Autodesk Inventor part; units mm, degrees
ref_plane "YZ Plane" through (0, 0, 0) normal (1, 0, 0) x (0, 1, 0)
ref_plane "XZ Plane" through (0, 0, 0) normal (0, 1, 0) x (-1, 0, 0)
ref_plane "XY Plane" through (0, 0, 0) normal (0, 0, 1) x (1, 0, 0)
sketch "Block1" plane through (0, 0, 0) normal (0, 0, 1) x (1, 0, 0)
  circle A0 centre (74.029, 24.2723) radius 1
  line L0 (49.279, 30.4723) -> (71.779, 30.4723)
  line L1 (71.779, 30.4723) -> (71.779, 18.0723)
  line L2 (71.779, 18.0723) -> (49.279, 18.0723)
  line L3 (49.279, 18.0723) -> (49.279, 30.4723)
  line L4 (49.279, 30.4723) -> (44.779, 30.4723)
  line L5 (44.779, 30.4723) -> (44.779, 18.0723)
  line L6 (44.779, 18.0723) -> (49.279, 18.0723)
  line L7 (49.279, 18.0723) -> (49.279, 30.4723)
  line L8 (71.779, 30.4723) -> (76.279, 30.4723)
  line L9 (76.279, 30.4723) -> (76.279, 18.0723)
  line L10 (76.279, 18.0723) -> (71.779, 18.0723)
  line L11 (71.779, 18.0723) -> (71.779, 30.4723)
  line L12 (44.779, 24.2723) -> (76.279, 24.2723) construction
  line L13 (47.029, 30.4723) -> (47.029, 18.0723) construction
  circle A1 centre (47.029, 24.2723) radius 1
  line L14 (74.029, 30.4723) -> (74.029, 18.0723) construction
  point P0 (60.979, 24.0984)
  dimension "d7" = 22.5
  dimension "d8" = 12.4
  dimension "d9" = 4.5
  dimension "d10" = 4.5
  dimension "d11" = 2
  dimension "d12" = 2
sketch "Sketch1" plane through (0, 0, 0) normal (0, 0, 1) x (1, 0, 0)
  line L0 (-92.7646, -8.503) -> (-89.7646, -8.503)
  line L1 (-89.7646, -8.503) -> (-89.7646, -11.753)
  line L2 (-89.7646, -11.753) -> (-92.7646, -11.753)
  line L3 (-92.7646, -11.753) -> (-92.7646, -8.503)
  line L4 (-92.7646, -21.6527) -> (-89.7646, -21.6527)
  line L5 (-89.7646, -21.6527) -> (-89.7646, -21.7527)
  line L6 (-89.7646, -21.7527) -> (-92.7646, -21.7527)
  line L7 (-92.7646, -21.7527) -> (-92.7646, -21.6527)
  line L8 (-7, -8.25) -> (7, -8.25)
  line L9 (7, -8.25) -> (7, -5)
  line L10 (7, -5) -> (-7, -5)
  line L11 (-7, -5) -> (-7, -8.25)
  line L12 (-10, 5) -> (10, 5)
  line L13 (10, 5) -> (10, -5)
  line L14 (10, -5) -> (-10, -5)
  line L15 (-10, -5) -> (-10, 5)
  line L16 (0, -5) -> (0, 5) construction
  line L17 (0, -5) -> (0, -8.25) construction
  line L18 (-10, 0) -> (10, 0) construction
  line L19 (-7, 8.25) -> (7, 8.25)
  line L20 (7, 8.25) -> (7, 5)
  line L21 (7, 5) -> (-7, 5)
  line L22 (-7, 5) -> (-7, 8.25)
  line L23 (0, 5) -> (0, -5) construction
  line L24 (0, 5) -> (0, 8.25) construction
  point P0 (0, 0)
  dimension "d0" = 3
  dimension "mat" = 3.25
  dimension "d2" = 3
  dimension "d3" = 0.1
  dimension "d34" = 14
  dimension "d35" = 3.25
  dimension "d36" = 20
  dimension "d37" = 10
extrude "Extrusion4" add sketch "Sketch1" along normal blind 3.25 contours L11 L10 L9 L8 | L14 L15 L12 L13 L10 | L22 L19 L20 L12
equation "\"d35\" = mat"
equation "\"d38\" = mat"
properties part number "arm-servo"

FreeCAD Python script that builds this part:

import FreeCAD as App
import Part
import Sketcher
Q = App.Units.Quantity


def add_polygon(sketch, points):
    """Adds a closed chain of lines whose ends are joined by coincident constraints."""
    first, n = sketch.GeometryCount, len(points)
    for a, b in zip(points, points[1:] + points[:1]):
        sketch.addGeometry(Part.LineSegment(App.Vector(*a, 0), App.Vector(*b, 0)), False)
    for i in range(n):
        sketch.addConstraint(Sketcher.Constraint("Coincident", first + i, 2, first + (i + 1) % n, 1))

doc = App.newDocument("Part")
body = doc.addObject("PartDesign::Body", "Body")

# Sketch on XY plane
sketch1 = doc.addObject("Sketcher::SketchObject", "Sketch")
body.addObject(sketch1)
sketch1.AttachmentSupport = (doc.XY_Plane, [""])
sketch1.MapMode = "FlatFace"
add_polygon(sketch1, [(-7, -5), (-7, -8.2), (7, -8.2), (7, -5), (10, -5), (10, 5), (7, 5), (7, 8.2), (-7, 8.2), (-7, 5), (-10, 5), (-10, -5)])  # lines 0-11
sketch1.addConstraint(Sketcher.Constraint("Vertical", 0))
sketch1.addConstraint(Sketcher.Constraint("Horizontal", 1))
sketch1.addConstraint(Sketcher.Constraint("Vertical", 2))
sketch1.addConstraint(Sketcher.Constraint("Horizontal", 3))
sketch1.addConstraint(Sketcher.Constraint("Vertical", 4))
sketch1.addConstraint(Sketcher.Constraint("Horizontal", 5))
sketch1.addConstraint(Sketcher.Constraint("Vertical", 6))
sketch1.addConstraint(Sketcher.Constraint("Horizontal", 7))
sketch1.addConstraint(Sketcher.Constraint("Vertical", 8))
sketch1.addConstraint(Sketcher.Constraint("Horizontal", 9))
sketch1.addConstraint(Sketcher.Constraint("Vertical", 10))
sketch1.addConstraint(Sketcher.Constraint("Horizontal", 11))
sketch1.addConstraint(Sketcher.Constraint("Symmetric", 0, 2, 6, 2, -1, 1))
sketch1.addConstraint(Sketcher.Constraint("Symmetric", 2, 2, 8, 2, -1, 1))
sketch1.addConstraint(Sketcher.Constraint("Symmetric", 4, 2, 10, 2, -1, 1))
sketch1.addConstraint(Sketcher.Constraint("Symmetric", 5, 2, 8, 2, -2))
sketch1.addConstraint(Sketcher.Constraint("DistanceX", 1, 1, 1, 2, Q("14 mm")))
sketch1.addConstraint(Sketcher.Constraint("DistanceX", 3, 1, 3, 2, Q("3 mm")))
sketch1.addConstraint(Sketcher.Constraint("DistanceY", 4, 1, 4, 2, Q("10 mm")))
sketch1.addConstraint(Sketcher.Constraint("DistanceY", 0, 2, 0, 1, Q("3.25 mm")))
pad1 = doc.addObject("PartDesign::Pad", "Pad")
body.addObject(pad1)
pad1.Profile = sketch1
pad1.Length = 3.25

doc.recompute()
